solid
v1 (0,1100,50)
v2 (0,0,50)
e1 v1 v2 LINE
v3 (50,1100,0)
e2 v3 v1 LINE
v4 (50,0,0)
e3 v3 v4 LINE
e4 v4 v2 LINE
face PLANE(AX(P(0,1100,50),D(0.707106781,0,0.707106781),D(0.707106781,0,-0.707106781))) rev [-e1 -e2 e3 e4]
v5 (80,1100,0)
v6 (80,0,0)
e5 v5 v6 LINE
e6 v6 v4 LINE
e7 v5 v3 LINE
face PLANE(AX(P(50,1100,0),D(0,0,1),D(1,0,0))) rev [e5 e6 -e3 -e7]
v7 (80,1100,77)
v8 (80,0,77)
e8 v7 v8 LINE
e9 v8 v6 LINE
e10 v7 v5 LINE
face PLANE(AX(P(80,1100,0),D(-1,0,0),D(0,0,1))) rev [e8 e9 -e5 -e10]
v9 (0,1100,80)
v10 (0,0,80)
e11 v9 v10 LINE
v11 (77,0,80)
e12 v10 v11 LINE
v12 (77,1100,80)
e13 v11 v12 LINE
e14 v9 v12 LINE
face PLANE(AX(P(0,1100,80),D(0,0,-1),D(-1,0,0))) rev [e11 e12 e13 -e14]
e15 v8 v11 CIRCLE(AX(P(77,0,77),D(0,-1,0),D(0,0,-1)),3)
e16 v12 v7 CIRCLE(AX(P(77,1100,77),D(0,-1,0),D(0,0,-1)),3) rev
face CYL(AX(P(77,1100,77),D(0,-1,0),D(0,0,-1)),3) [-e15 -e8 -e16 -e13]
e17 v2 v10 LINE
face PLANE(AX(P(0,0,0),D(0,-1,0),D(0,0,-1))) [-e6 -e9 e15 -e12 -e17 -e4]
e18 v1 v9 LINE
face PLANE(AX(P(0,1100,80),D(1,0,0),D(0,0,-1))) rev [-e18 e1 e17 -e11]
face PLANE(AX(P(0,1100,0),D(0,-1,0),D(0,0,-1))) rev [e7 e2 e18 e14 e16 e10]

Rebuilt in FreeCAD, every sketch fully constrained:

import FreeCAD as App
import Part
import Sketcher
Q = App.Units.Quantity


def edges_at(feature, points):
    """Names of the edges that pass closest to the given points."""
    edges = feature.Shape.Edges
    near = lambda p: min(range(len(edges)), key=lambda i: edges[i].distToShape(Part.Vertex(*p))[0])
    return sorted({f"Edge{near(p) + 1}" for p in points})


def add_polygon(sketch, points):
    """Adds a closed chain of lines whose ends are joined by coincident constraints."""
    first, n = sketch.GeometryCount, len(points)
    for a, b in zip(points, points[1:] + points[:1]):
        sketch.addGeometry(Part.LineSegment(App.Vector(*a, 0), App.Vector(*b, 0)), False)
    for i in range(n):
        sketch.addConstraint(Sketcher.Constraint("Coincident", first + i, 2, first + (i + 1) % n, 1))

doc = App.newDocument("Part")
params = doc.addObject("Spreadsheet::Sheet", "Params")
for row, (alias, value) in enumerate([
    ("sketch1_width", "80 mm"),
    ("sketch1_width2", "30 mm"),
    ("pad1_length", "1100 mm"),
    ("fillet_radius", "3 mm"),
], start=1):
    params.set(f"A{row}", alias)
    params.set(f"B{row}", "=" + value)
    params.setAlias(f"B{row}", alias)

body = doc.addObject("PartDesign::Body", "Body")

# Sketch on XZ plane
sketch1 = body.newObject("Sketcher::SketchObject", "Sketch")
sketch1.AttachmentSupport = (doc.getObject("XZ_Plane"), [""])
sketch1.MapMode = "FlatFace"
add_polygon(sketch1, [(0, 80), (80, 80), (80, 0), (50, 0), (0, 50)])  # lines 0-4
sketch1.addConstraint([
    Sketcher.Constraint("Horizontal", 0),
    Sketcher.Constraint("Vertical", 1),
    Sketcher.Constraint("Horizontal", 2),
    Sketcher.Constraint("Vertical", 4),
    Sketcher.Constraint("PointOnObject", 1, 2, -1),
    Sketcher.Constraint("PointOnObject", 3, 2, -2),
    Sketcher.Constraint("Equal", 0, 1),
    Sketcher.Constraint("Equal", 2, 4),
    Sketcher.Constraint("DistanceX", 0, 1, 0, 2, Q("80 mm")),
    Sketcher.Constraint("DistanceX", 2, 2, 2, 1, Q("30 mm")),
])
sketch1.setExpression("Constraints[13]", "Params.sketch1_width")
sketch1.setExpression("Constraints[14]", "Params.sketch1_width2")
pad1 = body.newObject("PartDesign::Pad", "Pad")
pad1.Profile = sketch1
pad1.setExpression("Length", "Params.pad1_length")
pad1.Reversed = True
doc.recompute()

fillet = body.newObject("PartDesign::Fillet", "Fillet")
fillet.Base = (pad1, edges_at(pad1, [(80, 550, 80)]))
fillet.setExpression("Radius", "Params.fillet_radius")

doc.recompute()
